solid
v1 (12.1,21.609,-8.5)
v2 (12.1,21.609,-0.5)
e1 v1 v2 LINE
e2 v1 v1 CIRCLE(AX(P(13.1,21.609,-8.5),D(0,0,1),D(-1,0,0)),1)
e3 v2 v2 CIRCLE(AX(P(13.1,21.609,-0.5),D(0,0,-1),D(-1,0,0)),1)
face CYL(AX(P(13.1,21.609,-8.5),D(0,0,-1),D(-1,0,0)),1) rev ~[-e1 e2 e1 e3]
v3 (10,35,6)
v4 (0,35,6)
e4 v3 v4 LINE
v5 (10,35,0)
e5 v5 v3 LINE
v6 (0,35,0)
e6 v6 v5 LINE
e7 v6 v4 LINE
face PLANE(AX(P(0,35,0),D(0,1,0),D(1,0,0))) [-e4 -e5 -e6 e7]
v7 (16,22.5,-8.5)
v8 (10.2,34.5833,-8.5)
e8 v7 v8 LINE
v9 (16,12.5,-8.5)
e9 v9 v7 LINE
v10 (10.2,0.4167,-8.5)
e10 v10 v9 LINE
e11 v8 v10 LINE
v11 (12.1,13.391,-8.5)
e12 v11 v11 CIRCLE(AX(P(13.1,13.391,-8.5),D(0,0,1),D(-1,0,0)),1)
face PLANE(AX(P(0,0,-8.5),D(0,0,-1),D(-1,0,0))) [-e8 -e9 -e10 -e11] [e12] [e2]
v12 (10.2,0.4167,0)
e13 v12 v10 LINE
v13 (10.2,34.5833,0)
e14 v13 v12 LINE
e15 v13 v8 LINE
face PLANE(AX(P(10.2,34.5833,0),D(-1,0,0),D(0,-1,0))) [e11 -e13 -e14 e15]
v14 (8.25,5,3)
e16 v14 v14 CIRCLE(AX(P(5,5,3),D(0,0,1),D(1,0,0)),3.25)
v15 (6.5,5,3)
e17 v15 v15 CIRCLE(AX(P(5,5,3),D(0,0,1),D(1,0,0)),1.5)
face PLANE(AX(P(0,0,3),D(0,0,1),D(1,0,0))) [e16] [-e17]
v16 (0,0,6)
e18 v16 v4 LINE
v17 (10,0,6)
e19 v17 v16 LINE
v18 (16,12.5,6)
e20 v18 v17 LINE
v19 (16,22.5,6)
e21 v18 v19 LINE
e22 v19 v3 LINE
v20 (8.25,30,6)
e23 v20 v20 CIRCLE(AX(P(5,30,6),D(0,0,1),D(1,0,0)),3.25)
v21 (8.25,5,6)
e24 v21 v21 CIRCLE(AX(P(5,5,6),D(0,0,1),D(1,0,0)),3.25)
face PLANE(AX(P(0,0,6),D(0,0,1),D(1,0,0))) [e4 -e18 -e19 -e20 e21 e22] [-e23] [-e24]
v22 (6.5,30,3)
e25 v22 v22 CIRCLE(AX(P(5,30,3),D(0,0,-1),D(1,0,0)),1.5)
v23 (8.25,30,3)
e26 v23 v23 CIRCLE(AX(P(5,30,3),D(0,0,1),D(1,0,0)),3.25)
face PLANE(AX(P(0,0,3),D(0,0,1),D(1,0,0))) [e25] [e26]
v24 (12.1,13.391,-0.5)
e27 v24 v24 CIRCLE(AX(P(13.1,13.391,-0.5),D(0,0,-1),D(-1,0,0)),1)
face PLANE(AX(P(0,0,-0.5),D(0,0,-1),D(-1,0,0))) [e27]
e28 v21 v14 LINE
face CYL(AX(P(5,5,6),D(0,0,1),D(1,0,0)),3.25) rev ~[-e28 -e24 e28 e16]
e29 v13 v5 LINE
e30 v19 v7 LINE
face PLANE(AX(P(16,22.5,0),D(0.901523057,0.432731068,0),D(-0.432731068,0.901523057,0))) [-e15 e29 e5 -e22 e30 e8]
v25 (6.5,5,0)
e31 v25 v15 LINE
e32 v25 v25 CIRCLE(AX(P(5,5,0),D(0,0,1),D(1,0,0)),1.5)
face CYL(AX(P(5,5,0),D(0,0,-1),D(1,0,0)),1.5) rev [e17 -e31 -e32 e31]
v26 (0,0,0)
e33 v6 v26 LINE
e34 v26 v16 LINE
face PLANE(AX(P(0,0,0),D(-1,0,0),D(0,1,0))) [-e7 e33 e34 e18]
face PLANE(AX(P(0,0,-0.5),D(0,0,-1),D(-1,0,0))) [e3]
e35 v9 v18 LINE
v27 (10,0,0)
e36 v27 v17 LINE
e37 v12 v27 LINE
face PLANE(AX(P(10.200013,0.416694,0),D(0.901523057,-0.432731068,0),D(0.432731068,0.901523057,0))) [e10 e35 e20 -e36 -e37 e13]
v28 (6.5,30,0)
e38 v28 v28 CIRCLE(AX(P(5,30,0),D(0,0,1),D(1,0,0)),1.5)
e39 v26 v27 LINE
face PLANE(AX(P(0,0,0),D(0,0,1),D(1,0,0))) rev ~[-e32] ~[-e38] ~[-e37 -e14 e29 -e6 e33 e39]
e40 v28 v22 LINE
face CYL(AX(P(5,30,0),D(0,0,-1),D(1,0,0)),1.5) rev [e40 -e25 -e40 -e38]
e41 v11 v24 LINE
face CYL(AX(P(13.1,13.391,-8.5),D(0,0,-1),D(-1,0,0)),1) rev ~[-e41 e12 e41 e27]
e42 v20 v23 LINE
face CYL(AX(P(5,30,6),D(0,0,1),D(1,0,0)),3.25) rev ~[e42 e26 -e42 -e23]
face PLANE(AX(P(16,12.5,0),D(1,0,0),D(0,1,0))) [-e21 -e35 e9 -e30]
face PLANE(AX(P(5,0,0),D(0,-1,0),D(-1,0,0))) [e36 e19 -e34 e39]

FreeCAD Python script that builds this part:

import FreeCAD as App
import Part
import Sketcher
Q = App.Units.Quantity


def add_polygon(sketch, points):
    """Adds a closed chain of lines whose ends are joined by coincident constraints."""
    first, n = sketch.GeometryCount, len(points)
    for a, b in zip(points, points[1:] + points[:1]):
        sketch.addGeometry(Part.LineSegment(App.Vector(*a, 0), App.Vector(*b, 0)), False)
    for i in range(n):
        sketch.addConstraint(Sketcher.Constraint("Coincident", first + i, 2, first + (i + 1) % n, 1))

doc = App.newDocument("Part")
params = doc.addObject("Spreadsheet::Sheet", "Params")
for row, (alias, value) in enumerate([
    ("sketch1_diameter", "3 mm"),
    ("sketch1_width", "10 mm"),
    ("pad1_length", "6 mm"),
    ("sketch2_height", "10 mm"),
    ("pad2_length", "8.5 mm"),
    ("sketch3_diameter", "6.5 mm"),
    ("sketch3_diameter2", "3 mm"),
    ("pocket1_length", "3 mm"),
    ("sketch4_diameter", "2 mm"),
    ("pocket2_length", "8 mm"),
], start=1):
    params.set(f"A{row}", alias)
    params.set(f"B{row}", "=" + value)
    params.setAlias(f"B{row}", alias)

body = doc.addObject("PartDesign::Body", "Body")

sketch1 = doc.addObject("Sketcher::SketchObject", "Sketch")
body.addObject(sketch1)
sketch1.AttachmentSupport = (doc.XY_Plane, [""])
sketch1.MapMode = "FlatFace"
add_polygon(sketch1, [(0, 0), (10, 0), (16, 12.5), (16, 22.5), (10, 35), (0, 35)])
sketch1.addGeometry(Part.Circle(App.Vector(5, 30, 0), App.Vector(0, 0, 1), 1.5), False)
sketch1.addGeometry(Part.Circle(App.Vector(5, 5, 0), App.Vector(0, 0, 1), 1.5), False)
sketch1.addConstraint(Sketcher.Constraint("Horizontal", 0))
sketch1.addConstraint(Sketcher.Constraint("Vertical", 2))
sketch1.addConstraint(Sketcher.Constraint("Horizontal", 4))
sketch1.addConstraint(Sketcher.Constraint("Vertical", 5))
sketch1.addConstraint(Sketcher.Constraint("Coincident", 5, 2, -1, 1))
sketch1.addConstraint(Sketcher.Constraint("Equal", 6, 7))
sketch1.addConstraint(Sketcher.Constraint("Vertical", 6, 3, 7, 3))
sketch1.addConstraint(Sketcher.Constraint("Vertical", 0, 2, 3, 2))
sketch1.addConstraint(Sketcher.Constraint("Equal", 4, 2))
sketch1.addConstraint(Sketcher.Constraint("Equal", 1, 3))
sketch1.addConstraint(Sketcher.Constraint("Diameter", 6, Q("3 mm")))
sketch1.addConstraint(Sketcher.Constraint("DistanceX", 0, 1, 0, 2, Q("10 mm")))
sketch1.addConstraint(Sketcher.Constraint("DistanceX", -1, 1, 6, 3, Q("5 mm")))
sketch1.addConstraint(Sketcher.Constraint("DistanceY", -1, 1, 7, 3, Q("5 mm")))
sketch1.addConstraint(Sketcher.Constraint("DistanceY", 7, 3, 6, 3, Q("25 mm")))
sketch1.addConstraint(Sketcher.Constraint("DistanceX", 0, 2, 1, 2, Q("6 mm")))
sketch1.addConstraint(Sketcher.Constraint("DistanceY", 6, 3, 3, 2, Q("5 mm")))
sketch1.setExpression("Constraints[16]", "Params.sketch1_diameter")
sketch1.setExpression("Constraints[17]", "Params.sketch1_width")
pad1 = doc.addObject("PartDesign::Pad", "Pad")
body.addObject(pad1)
pad1.Profile = sketch1
pad1.setExpression("Length", "Params.pad1_length")

sketch2 = doc.addObject("Sketcher::SketchObject", "Sketch001")
body.addObject(sketch2)
sketch2.AttachmentSupport = (doc.XY_Plane, [""])
sketch2.MapMode = "FlatFace"
add_polygon(sketch2, [(10, 0), (10, 35), (16, 22), (16, 12)])
sketch2.addConstraint(Sketcher.Constraint("Vertical", 0))
sketch2.addConstraint(Sketcher.Constraint("Vertical", 2))
sketch2.addConstraint(Sketcher.Constraint("Equal", 1, 3))
sketch2.addConstraint(Sketcher.Constraint("DistanceY", 2, 2, 2, 1, Q("10 mm")))
sketch2.addConstraint(Sketcher.Constraint("DistanceX", -1, 1, 1, 2, Q("16 mm")))
sketch2.addConstraint(Sketcher.Constraint("DistanceX", -1, 1, 0, 2, Q("10.2 mm")))
sketch2.addConstraint(Sketcher.Constraint("DistanceY", -1, 1, 1, 2, Q("22.5 mm")))
sketch2.addConstraint(Sketcher.Constraint("Angle", 1, Q("-64.359 deg")))
sketch2.setExpression("Constraints[7]", "Params.sketch2_height")
pad2 = doc.addObject("PartDesign::Pad", "Pad001")
body.addObject(pad2)
pad2.Profile = sketch2
pad2.setExpression("Length", "Params.pad2_length")
pad2.Reversed = True

sketch3 = doc.addObject("Sketcher::SketchObject", "Sketch002")
body.addObject(sketch3)
sketch3.AttachmentSupport = (doc.XY_Plane, [""])
sketch3.MapMode = "FlatFace"
sketch3.AttachmentOffset = App.Placement(App.Vector(0, 0, 6), App.Rotation())
sketch3.addGeometry(Part.Circle(App.Vector(5, 30, 0), App.Vector(0, 0, 1), 3.2), False)
sketch3.addGeometry(Part.Circle(App.Vector(5, 5, 0), App.Vector(0, 0, 1), 3.2), False)
sketch3.addGeometry(Part.Circle(App.Vector(5, 5, 0), App.Vector(0, 0, 1), 1.5), False)
sketch3.addConstraint(Sketcher.Constraint("Coincident", 2, 3, 1, 3))
sketch3.addConstraint(Sketcher.Constraint("Equal", 0, 1))
sketch3.addConstraint(Sketcher.Constraint("Vertical", 0, 3, 1, 3))
sketch3.addConstraint(Sketcher.Constraint("Diameter", 0, Q("6.5 mm")))
sketch3.addConstraint(Sketcher.Constraint("Diameter", 2, Q("3 mm")))
sketch3.addConstraint(Sketcher.Constraint("DistanceX", -1, 1, 0, 3, Q("5 mm")))
sketch3.addConstraint(Sketcher.Constraint("DistanceY", -1, 1, 0, 3, Q("30 mm")))
sketch3.addConstraint(Sketcher.Constraint("DistanceY", -1, 1, 1, 3, Q("5 mm")))
sketch3.setExpression("Constraints[3]", "Params.sketch3_diameter")
sketch3.setExpression("Constraints[4]", "Params.sketch3_diameter2")
pocket1 = doc.addObject("PartDesign::Pocket", "Pocket")
body.addObject(pocket1)
pocket1.Profile = sketch3
pocket1.setExpression("Length", "Params.pocket1_length")

sketch4 = doc.addObject("Sketcher::SketchObject", "Sketch003")
body.addObject(sketch4)
sketch4.AttachmentSupport = (doc.XY_Plane, [""])
sketch4.MapMode = "FlatFace"
sketch4.AttachmentOffset = App.Placement(App.Vector(0, 0, -8.5), App.Rotation())
sketch4.addGeometry(Part.Circle(App.Vector(13.1, 21.6, 0), App.Vector(0, 0, 1), 1), False)
sketch4.addGeometry(Part.Circle(App.Vector(13.1, 13.4, 0), App.Vector(0, 0, 1), 1), False)
sketch4.addConstraint(Sketcher.Constraint("Equal", 0, 1))
sketch4.addConstraint(Sketcher.Constraint("Vertical", 0, 3, 1, 3))
sketch4.addConstraint(Sketcher.Constraint("Diameter", 0, Q("2 mm")))
sketch4.addConstraint(Sketcher.Constraint("DistanceY", 1, 3, 0, 3, Q("8.218 mm")))
sketch4.addConstraint(Sketcher.Constraint("DistanceX", -1, 1, 0, 3, Q("13.1 mm")))
sketch4.addConstraint(Sketcher.Constraint("DistanceY", -1, 1, 0, 3, Q("21.609 mm")))
sketch4.setExpression("Constraints[2]", "Params.sketch4_diameter")
pocket2 = doc.addObject("PartDesign::Pocket", "Pocket001")
body.addObject(pocket2)
pocket2.Profile = sketch4
pocket2.setExpression("Length", "Params.pocket2_length")
pocket2.Reversed = True

doc.recompute()
